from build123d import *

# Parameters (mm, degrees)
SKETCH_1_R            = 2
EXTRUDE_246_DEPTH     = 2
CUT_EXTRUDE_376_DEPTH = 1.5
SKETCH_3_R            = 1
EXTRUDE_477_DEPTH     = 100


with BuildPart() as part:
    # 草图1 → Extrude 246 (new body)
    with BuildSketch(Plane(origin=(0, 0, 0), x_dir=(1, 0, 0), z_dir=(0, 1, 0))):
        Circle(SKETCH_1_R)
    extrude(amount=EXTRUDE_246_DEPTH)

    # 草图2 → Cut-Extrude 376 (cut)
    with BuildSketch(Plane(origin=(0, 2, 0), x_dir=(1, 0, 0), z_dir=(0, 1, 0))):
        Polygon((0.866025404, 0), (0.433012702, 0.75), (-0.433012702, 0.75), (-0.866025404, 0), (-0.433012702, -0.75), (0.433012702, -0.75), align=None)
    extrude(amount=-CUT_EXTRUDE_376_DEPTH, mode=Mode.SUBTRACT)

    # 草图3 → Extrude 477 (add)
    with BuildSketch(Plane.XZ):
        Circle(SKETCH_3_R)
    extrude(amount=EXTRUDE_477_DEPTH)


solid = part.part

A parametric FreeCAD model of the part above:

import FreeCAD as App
import Part
import Sketcher
from FreeCAD import Vector
Q = App.Units.Quantity

doc = App.newDocument("Part")
body = doc.addObject("PartDesign::Body", "Body")

# Sketch on XZ plane
sketch1 = doc.addObject("Sketcher::SketchObject", "Sketch")
body.addObject(sketch1)
sketch1.AttachmentSupport = (doc.XZ_Plane, [""])
sketch1.MapMode = "FlatFace"
sketch1.addGeometry(Part.Circle(Vector(0, 0, 0), Vector(0, 0, 1), 2), False)
sketch1.addConstraint([
    Sketcher.Constraint("Coincident", 0, 3, -1, 1),
    Sketcher.Constraint("Diameter", 0, 4.0),
])
pad1 = doc.addObject("PartDesign::Pad", "Pad")
body.addObject(pad1)
pad1.Profile = sketch1
pad1.Length = 2
pad1.Reversed = True

# Sketch on XZ plane
sketch2 = doc.addObject("Sketcher::SketchObject", "Sketch001")
body.addObject(sketch2)
sketch2.AttachmentSupport = (doc.XZ_Plane, [""])
sketch2.MapMode = "FlatFace"
sketch2.AttachmentOffset = App.Placement(Vector(0, 0, -2), App.Rotation())
sketch2.addGeometry([
    Part.LineSegment(Vector(0.9, 0, 0), Vector(0.4, -0.8, 0)),  # 0
    Part.LineSegment(Vector(0.4, -0.8, 0), Vector(-0.4, -0.8, 0)),  # 1
    Part.LineSegment(Vector(-0.4, -0.8, 0), Vector(-0.9, 0, 0)),  # 2
    Part.LineSegment(Vector(-0.9, 0, 0), Vector(-0.4, 0.8, 0)),  # 3
    Part.LineSegment(Vector(-0.4, 0.8, 0), Vector(0.4, 0.8, 0)),  # 4
    Part.LineSegment(Vector(0.4, 0.8, 0), Vector(0.9, 0, 0)),  # 5
], False)
sketch2.addConstraint([
    Sketcher.Constraint("Coincident", 0, 2, 1, 1),
    Sketcher.Constraint("Coincident", 1, 2, 2, 1),
    Sketcher.Constraint("Coincident", 2, 2, 3, 1),
    Sketcher.Constraint("Coincident", 3, 2, 4, 1),
    Sketcher.Constraint("Coincident", 4, 2, 5, 1),
    Sketcher.Constraint("Coincident", 5, 2, 0, 1),
    Sketcher.Constraint("Horizontal", 1),
    Sketcher.Constraint("Horizontal", 4),
    Sketcher.Constraint("Symmetric", 0, 2, 3, 2, -1, 1),
    Sketcher.Constraint("Symmetric", 2, 2, 5, 2, -1, 1),
    Sketcher.Constraint("PointOnObject", 2, 2, -1),
    Sketcher.Constraint("Parallel", 2, 5),
    Sketcher.Constraint("Vertical", 1, 2, 3, 2),
    Sketcher.Constraint("Angle", 0, Q("-120 deg")),
    Sketcher.Constraint("DistanceY", 1, 2, 3, 2, 1.5),
    Sketcher.Constraint("DistanceX", 1, 2, 1, 1, 0.866025),
])
pocket1 = doc.addObject("PartDesign::Pocket", "Pocket")
body.addObject(pocket1)
pocket1.Profile = sketch2
pocket1.Length = 1.5
pocket1.Reversed = True

# Sketch on XZ plane
sketch3 = doc.addObject("Sketcher::SketchObject", "Sketch002")
body.addObject(sketch3)
sketch3.AttachmentSupport = (doc.XZ_Plane, [""])
sketch3.MapMode = "FlatFace"
sketch3.addGeometry(Part.Circle(Vector(0, 0, 0), Vector(0, 0, 1), 1), False)
sketch3.addConstraint([
    Sketcher.Constraint("Coincident", 0, 3, -1, 1),
    Sketcher.Constraint("Diameter", 0, 2.0),
])
pad2 = doc.addObject("PartDesign::Pad", "Pad001")
body.addObject(pad2)
pad2.Profile = sketch3
pad2.Length = 100

doc.recompute()
